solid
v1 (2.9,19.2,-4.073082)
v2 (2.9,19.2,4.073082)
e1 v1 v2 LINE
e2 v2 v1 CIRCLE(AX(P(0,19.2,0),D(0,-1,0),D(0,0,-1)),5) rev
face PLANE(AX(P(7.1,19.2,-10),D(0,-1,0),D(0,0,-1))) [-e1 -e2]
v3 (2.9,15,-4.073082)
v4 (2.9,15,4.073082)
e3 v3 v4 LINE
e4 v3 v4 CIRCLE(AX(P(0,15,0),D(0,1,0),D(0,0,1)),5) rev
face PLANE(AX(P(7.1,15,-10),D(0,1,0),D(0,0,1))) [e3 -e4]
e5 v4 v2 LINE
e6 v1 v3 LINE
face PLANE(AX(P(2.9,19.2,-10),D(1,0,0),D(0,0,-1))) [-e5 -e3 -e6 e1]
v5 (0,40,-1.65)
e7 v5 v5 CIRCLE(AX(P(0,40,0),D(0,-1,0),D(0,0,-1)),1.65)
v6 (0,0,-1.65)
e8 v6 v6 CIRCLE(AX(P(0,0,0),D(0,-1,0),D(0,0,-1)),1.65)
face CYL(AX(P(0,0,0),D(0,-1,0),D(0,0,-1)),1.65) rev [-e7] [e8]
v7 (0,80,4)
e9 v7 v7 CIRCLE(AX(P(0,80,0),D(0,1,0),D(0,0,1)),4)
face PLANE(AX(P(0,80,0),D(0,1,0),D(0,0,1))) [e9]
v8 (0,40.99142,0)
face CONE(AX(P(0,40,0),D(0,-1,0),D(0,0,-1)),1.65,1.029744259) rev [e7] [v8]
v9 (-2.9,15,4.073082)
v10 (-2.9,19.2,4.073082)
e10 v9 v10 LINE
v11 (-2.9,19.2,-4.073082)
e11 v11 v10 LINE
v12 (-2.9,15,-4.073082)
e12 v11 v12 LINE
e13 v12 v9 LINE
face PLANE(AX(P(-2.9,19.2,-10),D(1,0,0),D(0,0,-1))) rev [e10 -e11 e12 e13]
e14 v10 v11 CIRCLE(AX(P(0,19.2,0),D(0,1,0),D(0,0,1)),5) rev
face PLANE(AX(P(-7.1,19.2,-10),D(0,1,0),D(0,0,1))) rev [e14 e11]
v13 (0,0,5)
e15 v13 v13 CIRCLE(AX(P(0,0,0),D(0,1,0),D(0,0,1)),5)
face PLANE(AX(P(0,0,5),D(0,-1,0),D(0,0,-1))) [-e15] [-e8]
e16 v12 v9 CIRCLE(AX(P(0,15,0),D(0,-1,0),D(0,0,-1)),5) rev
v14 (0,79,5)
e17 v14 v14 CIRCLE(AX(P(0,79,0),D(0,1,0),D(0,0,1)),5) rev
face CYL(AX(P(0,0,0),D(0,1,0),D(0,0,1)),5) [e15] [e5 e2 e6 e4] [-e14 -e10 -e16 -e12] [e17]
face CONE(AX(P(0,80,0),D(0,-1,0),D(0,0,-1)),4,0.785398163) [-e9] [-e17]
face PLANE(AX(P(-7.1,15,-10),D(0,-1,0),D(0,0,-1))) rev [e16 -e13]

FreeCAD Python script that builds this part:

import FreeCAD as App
import Part
import Sketcher
from FreeCAD import Vector


def edges_at(feature, points):
    """Names of the edges that pass closest to the given points."""
    edges = feature.Shape.Edges
    near = lambda p: min(range(len(edges)), key=lambda i: edges[i].distToShape(Part.Vertex(*p))[0])
    return sorted({f"Edge{near(p) + 1}" for p in points})


def add_polygon(sketch, points):
    """Adds a closed chain of lines whose ends are joined by coincident constraints."""
    first, n = sketch.GeometryCount, len(points)
    for a, b in zip(points, points[1:] + points[:1]):
        sketch.addGeometry(Part.LineSegment(App.Vector(*a, 0), App.Vector(*b, 0)), False)
    for i in range(n):
        sketch.addConstraint(Sketcher.Constraint("Coincident", first + i, 2, first + (i + 1) % n, 1))

doc = App.newDocument("Part")
body = doc.addObject("PartDesign::Body", "Body")

# Sketch on YZ plane
sketch1 = body.newObject("Sketcher::SketchObject", "Sketch")
sketch1.AttachmentSupport = (doc.getObject("YZ_Plane"), [""])
sketch1.MapMode = "FlatFace"
add_polygon(sketch1, [(80, 5), (0, 5), (0, 0), (80, 0)])  # lines 0-3
sketch1.addConstraint(Sketcher.Constraint("Horizontal", 0))
sketch1.addConstraint(Sketcher.Constraint("Vertical", 1))
sketch1.addConstraint(Sketcher.Constraint("Horizontal", 2))
sketch1.addConstraint(Sketcher.Constraint("Vertical", 3))
sketch1.addConstraint(Sketcher.Constraint("Coincident", 1, 2, -1, 1))
sketch1.addConstraint(Sketcher.Constraint("DistanceX", 0, 2, 0, 1, 80.0))
sketch1.addConstraint(Sketcher.Constraint("DistanceY", 1, 2, 1, 1, 5.0))
revolution = body.newObject("PartDesign::Revolution", "Revolution")
revolution.Profile = sketch1
revolution.ReferenceAxis = (sketch1, ["H_Axis"])
revolution.Angle = 360

# Sketch on XZ plane
sketch2 = body.newObject("Sketcher::SketchObject", "Sketch001")
sketch2.AttachmentSupport = (doc.getObject("XZ_Plane"), [""])
sketch2.MapMode = "FlatFace"
sketch2.addGeometry(Part.Circle(Vector(0, 0, 0), Vector(0, 0, 1), 1.65), False)
sketch2.addConstraint(Sketcher.Constraint("Coincident", 0, 3, -1, 1))
sketch2.addConstraint(Sketcher.Constraint("Diameter", 0, 3.3))
doc.recompute()
hole = body.newObject("PartDesign::Hole", "Hole")
hole.Profile = sketch2
hole.ThreadType = "None"
hole.Diameter = 3.3
hole.DepthType = "Dimension"
hole.Depth = 40
hole.DrillPoint = "Angled"
hole.DrillPointAngle = 118

# Sketch on XY plane
sketch3 = body.newObject("Sketcher::SketchObject", "Sketch002")
sketch3.AttachmentSupport = (doc.getObject("XY_Plane"), [""])
sketch3.MapMode = "FlatFace"
add_polygon(sketch3, [(-7.1, 19.2), (-7.1, 15), (-2.9, 15), (-2.9, 19.2)])  # lines 0-3
sketch3.addConstraint(Sketcher.Constraint("Vertical", 0))
sketch3.addConstraint(Sketcher.Constraint("Horizontal", 1))
sketch3.addConstraint(Sketcher.Constraint("Vertical", 2))
sketch3.addConstraint(Sketcher.Constraint("Horizontal", 3))
sketch3.addConstraint(Sketcher.Constraint("Equal", 3, 0))
sketch3.addConstraint(Sketcher.Constraint("DistanceX", 1, 1, 1, 2, 4.2))
sketch3.addConstraint(Sketcher.Constraint("DistanceY", -1, 1, 0, 2, 15.0))
sketch3.addConstraint(Sketcher.Constraint("DistanceX", 0, 2, -1, 1, 7.1))
pocket1 = body.newObject("PartDesign::Pocket", "Pocket")
pocket1.Profile = sketch3
pocket1.Length = 20
pocket1.Midplane = True
doc.recompute()

mirrored = body.newObject("PartDesign::Mirrored", "Mirrored")
mirrored.Originals = [pocket1]
mirrored.MirrorPlane = (doc.getObject("YZ_Plane"), [""])
body.Tip = mirrored
doc.recompute()

chamfer = body.newObject("PartDesign::Chamfer", "Chamfer")
chamfer.Base = (mirrored, edges_at(mirrored, [(0, 80, -5)]))
chamfer.Size = 1

doc.recompute()
